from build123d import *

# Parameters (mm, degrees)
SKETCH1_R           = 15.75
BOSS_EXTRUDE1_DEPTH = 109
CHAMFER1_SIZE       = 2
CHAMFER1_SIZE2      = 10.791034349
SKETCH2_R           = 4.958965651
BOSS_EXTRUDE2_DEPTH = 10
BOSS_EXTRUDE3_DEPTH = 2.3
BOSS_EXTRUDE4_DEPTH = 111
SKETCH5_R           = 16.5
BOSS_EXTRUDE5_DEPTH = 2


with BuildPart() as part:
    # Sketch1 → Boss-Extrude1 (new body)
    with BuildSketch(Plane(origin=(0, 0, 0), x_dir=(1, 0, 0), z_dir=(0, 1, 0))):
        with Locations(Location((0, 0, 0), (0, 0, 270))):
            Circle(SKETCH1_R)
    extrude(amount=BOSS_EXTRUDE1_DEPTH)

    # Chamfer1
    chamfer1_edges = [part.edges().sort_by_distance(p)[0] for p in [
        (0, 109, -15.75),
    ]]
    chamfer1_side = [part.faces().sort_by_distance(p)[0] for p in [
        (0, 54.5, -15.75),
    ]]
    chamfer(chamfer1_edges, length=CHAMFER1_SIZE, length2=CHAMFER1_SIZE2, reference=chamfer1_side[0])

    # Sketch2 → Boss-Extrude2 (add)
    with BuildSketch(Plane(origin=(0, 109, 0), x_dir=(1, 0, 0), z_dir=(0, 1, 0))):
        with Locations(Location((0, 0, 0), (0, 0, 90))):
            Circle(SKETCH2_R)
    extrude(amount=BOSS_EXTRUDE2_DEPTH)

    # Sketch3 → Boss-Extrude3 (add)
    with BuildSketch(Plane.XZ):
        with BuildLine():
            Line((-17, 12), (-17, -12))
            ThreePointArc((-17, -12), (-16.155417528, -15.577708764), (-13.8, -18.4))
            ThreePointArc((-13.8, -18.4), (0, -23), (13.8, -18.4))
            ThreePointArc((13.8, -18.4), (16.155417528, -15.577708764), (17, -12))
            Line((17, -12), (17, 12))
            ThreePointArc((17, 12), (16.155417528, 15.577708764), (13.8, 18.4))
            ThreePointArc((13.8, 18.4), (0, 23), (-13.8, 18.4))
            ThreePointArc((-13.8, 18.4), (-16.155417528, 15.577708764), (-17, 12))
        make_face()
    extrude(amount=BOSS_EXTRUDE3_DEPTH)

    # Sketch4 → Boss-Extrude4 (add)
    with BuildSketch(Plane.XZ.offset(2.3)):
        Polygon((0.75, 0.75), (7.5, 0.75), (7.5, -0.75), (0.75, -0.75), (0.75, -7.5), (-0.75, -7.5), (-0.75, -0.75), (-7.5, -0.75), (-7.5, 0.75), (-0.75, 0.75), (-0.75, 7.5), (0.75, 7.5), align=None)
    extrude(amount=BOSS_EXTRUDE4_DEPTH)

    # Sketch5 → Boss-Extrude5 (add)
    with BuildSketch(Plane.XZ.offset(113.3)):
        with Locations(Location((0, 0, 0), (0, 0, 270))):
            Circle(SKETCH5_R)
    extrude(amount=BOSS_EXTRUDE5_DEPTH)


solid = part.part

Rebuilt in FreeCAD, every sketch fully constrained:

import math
import FreeCAD as App
import Part
import Sketcher
Q = App.Units.Quantity


def edges_at(feature, points):
    """Names of the edges that pass closest to the given points."""
    edges = feature.Shape.Edges
    near = lambda p: min(range(len(edges)), key=lambda i: edges[i].distToShape(Part.Vertex(*p))[0])
    return sorted({f"Edge{near(p) + 1}" for p in points})


def add_polygon(sketch, points):
    """Adds a closed chain of lines whose ends are joined by coincident constraints."""
    first, n = sketch.GeometryCount, len(points)
    for a, b in zip(points, points[1:] + points[:1]):
        sketch.addGeometry(Part.LineSegment(App.Vector(*a, 0), App.Vector(*b, 0)), False)
    for i in range(n):
        sketch.addConstraint(Sketcher.Constraint("Coincident", first + i, 2, first + (i + 1) % n, 1))

doc = App.newDocument("Part")
params = doc.addObject("Spreadsheet::Sheet", "Params")
for row, (alias, value) in enumerate([
    ("sketch1_diameter", "31.5 mm"),
    ("pad1_length", "109 mm"),
    ("chamfer_size", "2 mm"),
    ("chamfer_size2", "10.791034 mm"),
    ("pad2_length", "10 mm"),
    ("sketch3_radius", "8 mm"),
    ("sketch3_radius2", "23 mm"),
    ("sketch3_height", "24 mm"),
    ("pad3_length", "2.3 mm"),
    ("sketch4_width", "1.5 mm"),
    ("sketch4_width2", "6.75 mm"),
    ("pad4_length", "111 mm"),
    ("sketch5_diameter", "33 mm"),
    ("pad5_length", "2 mm"),
], start=1):
    params.set(f"A{row}", alias)
    params.set(f"B{row}", "=" + value)
    params.setAlias(f"B{row}", alias)

body = doc.addObject("PartDesign::Body", "Body")

# Sketch on XZ plane
sketch1 = body.newObject("Sketcher::SketchObject", "Sketch")
sketch1.AttachmentSupport = (doc.getObject("XZ_Plane"), [""])
sketch1.MapMode = "FlatFace"
sketch1.addGeometry(Part.Circle(App.Vector(0, 0, 0), App.Vector(0, 0, 1), 16), False)
sketch1.addConstraint(Sketcher.Constraint("Coincident", 0, 3, -1, 1))
sketch1.addConstraint(Sketcher.Constraint("Diameter", 0, Q("31.5 mm")))
sketch1.setExpression("Constraints[1]", "Params.sketch1_diameter")
pad1 = body.newObject("PartDesign::Pad", "Pad")
pad1.Profile = sketch1
pad1.setExpression("Length", "Params.pad1_length")
pad1.Reversed = True
doc.recompute()

chamfer = body.newObject("PartDesign::Chamfer", "Chamfer")
chamfer.Base = (pad1, edges_at(pad1, [(0, 109, -15.75)]))
chamfer.ChamferType = "Two distances"
chamfer.setExpression("Size", "Params.chamfer_size")
chamfer.setExpression("Size2", "Params.chamfer_size2")

# Sketch on XZ plane
sketch2 = body.newObject("Sketcher::SketchObject", "Sketch001")
sketch2.AttachmentSupport = (doc.getObject("XZ_Plane"), [""])
sketch2.MapMode = "FlatFace"
sketch2.AttachmentOffset = App.Placement(App.Vector(0, 0, -109), App.Rotation())
sketch2.addGeometry(Part.Circle(App.Vector(0, 0, 0), App.Vector(0, 0, 1), 5), False)
sketch2.addConstraint(Sketcher.Constraint("Coincident", 0, 3, -1, 1))
sketch2.addConstraint(Sketcher.Constraint("Diameter", 0, Q("9.917931 mm")))
pad2 = body.newObject("PartDesign::Pad", "Pad001")
pad2.Profile = sketch2
pad2.setExpression("Length", "Params.pad2_length")
pad2.Reversed = True

# Sketch on XZ plane
sketch3 = body.newObject("Sketcher::SketchObject", "Sketch002")
sketch3.AttachmentSupport = (doc.getObject("XZ_Plane"), [""])
sketch3.MapMode = "FlatFace"
sketch3.addGeometry(Part.LineSegment(App.Vector(-17, 12, 0), App.Vector(-17, -12, 0)), False)
sketch3.addGeometry(Part.ArcOfCircle(Part.Circle(App.Vector(-9, -12, 0), App.Vector(0, 0, 1), 8), math.radians(180), math.radians(233)), False)
sketch3.addGeometry(Part.ArcOfCircle(Part.Circle(App.Vector(0, 0, 0), App.Vector(0, 0, 1), 23), math.radians(-127), math.radians(-53)), False)
sketch3.addGeometry(Part.ArcOfCircle(Part.Circle(App.Vector(9, -12, 0), App.Vector(0, 0, 1), 8), math.radians(-53), math.radians(0)), False)
sketch3.addGeometry(Part.LineSegment(App.Vector(17, -12, 0), App.Vector(17, 12, 0)), False)
sketch3.addGeometry(Part.ArcOfCircle(Part.Circle(App.Vector(9, 12, 0), App.Vector(0, 0, 1), 8), math.radians(0), math.radians(53)), False)
sketch3.addGeometry(Part.ArcOfCircle(Part.Circle(App.Vector(0, 0, 0), App.Vector(0, 0, 1), 23), math.radians(53), math.radians(127)), False)
sketch3.addGeometry(Part.ArcOfCircle(Part.Circle(App.Vector(-9, 12, 0), App.Vector(0, 0, 1), 8), math.radians(127), math.radians(180)), False)
sketch3.addConstraint(Sketcher.Constraint("Tangent", 0, 2, 1, 1))
sketch3.addConstraint(Sketcher.Constraint("Tangent", 1, 2, 2, 1))
sketch3.addConstraint(Sketcher.Constraint("Tangent", 2, 2, 3, 1))
sketch3.addConstraint(Sketcher.Constraint("Tangent", 3, 2, 4, 1))
sketch3.addConstraint(Sketcher.Constraint("Tangent", 4, 2, 5, 1))
sketch3.addConstraint(Sketcher.Constraint("Tangent", 5, 2, 6, 1))
sketch3.addConstraint(Sketcher.Constraint("Tangent", 6, 2, 7, 1))
sketch3.addConstraint(Sketcher.Constraint("Tangent", 7, 2, 0, 1))
sketch3.addConstraint(Sketcher.Constraint("Vertical", 0))
sketch3.addConstraint(Sketcher.Constraint("Vertical", 4))
sketch3.addConstraint(Sketcher.Constraint("Coincident", 2, 3, -1, 1))
sketch3.addConstraint(Sketcher.Constraint("Coincident", 6, 3, -1, 1))
sketch3.addConstraint(Sketcher.Constraint("Equal", 1, 3))
sketch3.addConstraint(Sketcher.Constraint("Equal", 3, 5))
sketch3.addConstraint(Sketcher.Constraint("Equal", 2, 6))
sketch3.addConstraint(Sketcher.Constraint("Equal", 5, 7))
sketch3.addConstraint(Sketcher.Constraint("Horizontal", 1, 3, 3, 3))
sketch3.addConstraint(Sketcher.Constraint("Radius", 1, Q("8 mm")))
sketch3.addConstraint(Sketcher.Constraint("Radius", 2, Q("23 mm")))
sketch3.addConstraint(Sketcher.Constraint("DistanceY", 0, 2, 0, 1, Q("24 mm")))
sketch3.setExpression("Constraints[17]", "Params.sketch3_radius")
sketch3.setExpression("Constraints[18]", "Params.sketch3_radius2")
sketch3.setExpression("Constraints[19]", "Params.sketch3_height")
pad3 = body.newObject("PartDesign::Pad", "Pad002")
pad3.Profile = sketch3
pad3.setExpression("Length", "Params.pad3_length")

# Sketch on XZ plane
sketch4 = body.newObject("Sketcher::SketchObject", "Sketch003")
sketch4.AttachmentSupport = (doc.getObject("XZ_Plane"), [""])
sketch4.MapMode = "FlatFace"
sketch4.AttachmentOffset = App.Placement(App.Vector(0, 0, 2.3), App.Rotation())
add_polygon(sketch4, [(7.5, 0.8), (0.8, 0.8), (0.8, 7.5), (-0.8, 7.5), (-0.8, 0.8), (-7.5, 0.8), (-7.5, -0.8), (-0.8, -0.8), (-0.8, -7.5), (0.8, -7.5), (0.8, -0.8), (7.5, -0.8)])  # lines 0-11
sketch4.addConstraint(Sketcher.Constraint("Horizontal", 0))
sketch4.addConstraint(Sketcher.Constraint("Vertical", 1))
sketch4.addConstraint(Sketcher.Constraint("Horizontal", 2))
sketch4.addConstraint(Sketcher.Constraint("Vertical", 3))
sketch4.addConstraint(Sketcher.Constraint("Horizontal", 4))
sketch4.addConstraint(Sketcher.Constraint("Vertical", 5))
sketch4.addConstraint(Sketcher.Constraint("Horizontal", 6))
sketch4.addConstraint(Sketcher.Constraint("Vertical", 7))
sketch4.addConstraint(Sketcher.Constraint("Horizontal", 8))
sketch4.addConstraint(Sketcher.Constraint("Vertical", 9))
sketch4.addConstraint(Sketcher.Constraint("Horizontal", 10))
sketch4.addConstraint(Sketcher.Constraint("Vertical", 11))
sketch4.addConstraint(Sketcher.Constraint("Symmetric", 0, 2, 6, 2, -1, 1))
sketch4.addConstraint(Sketcher.Constraint("Symmetric", 2, 2, 8, 2, -1, 1))
sketch4.addConstraint(Sketcher.Constraint("Symmetric", 4, 2, 10, 2, -1, 1))
sketch4.addConstraint(Sketcher.Constraint("Symmetric", 0, 2, 3, 2, -2))
sketch4.addConstraint(Sketcher.Constraint("Equal", 10, 1))
sketch4.addConstraint(Sketcher.Constraint("Equal", 8, 5))
sketch4.addConstraint(Sketcher.Constraint("DistanceX", 2, 2, 2, 1, Q("1.5 mm")))
sketch4.addConstraint(Sketcher.Constraint("DistanceX", 0, 2, 0, 1, Q("6.75 mm")))
sketch4.setExpression("Constraints[30]", "Params.sketch4_width")
sketch4.setExpression("Constraints[31]", "Params.sketch4_width2")
pad4 = body.newObject("PartDesign::Pad", "Pad003")
pad4.Profile = sketch4
pad4.setExpression("Length", "Params.pad4_length")

# Sketch on XZ plane
sketch5 = body.newObject("Sketcher::SketchObject", "Sketch004")
sketch5.AttachmentSupport = (doc.getObject("XZ_Plane"), [""])
sketch5.MapMode = "FlatFace"
sketch5.AttachmentOffset = App.Placement(App.Vector(0, 0, 113.3), App.Rotation())
sketch5.addGeometry(Part.Circle(App.Vector(0, 0, 0), App.Vector(0, 0, 1), 16), False)
sketch5.addConstraint(Sketcher.Constraint("Coincident", 0, 3, -1, 1))
sketch5.addConstraint(Sketcher.Constraint("Diameter", 0, Q("33 mm")))
sketch5.setExpression("Constraints[1]", "Params.sketch5_diameter")
pad5 = body.newObject("PartDesign::Pad", "Pad004")
pad5.Profile = sketch5
pad5.setExpression("Length", "Params.pad5_length")

doc.recompute()
